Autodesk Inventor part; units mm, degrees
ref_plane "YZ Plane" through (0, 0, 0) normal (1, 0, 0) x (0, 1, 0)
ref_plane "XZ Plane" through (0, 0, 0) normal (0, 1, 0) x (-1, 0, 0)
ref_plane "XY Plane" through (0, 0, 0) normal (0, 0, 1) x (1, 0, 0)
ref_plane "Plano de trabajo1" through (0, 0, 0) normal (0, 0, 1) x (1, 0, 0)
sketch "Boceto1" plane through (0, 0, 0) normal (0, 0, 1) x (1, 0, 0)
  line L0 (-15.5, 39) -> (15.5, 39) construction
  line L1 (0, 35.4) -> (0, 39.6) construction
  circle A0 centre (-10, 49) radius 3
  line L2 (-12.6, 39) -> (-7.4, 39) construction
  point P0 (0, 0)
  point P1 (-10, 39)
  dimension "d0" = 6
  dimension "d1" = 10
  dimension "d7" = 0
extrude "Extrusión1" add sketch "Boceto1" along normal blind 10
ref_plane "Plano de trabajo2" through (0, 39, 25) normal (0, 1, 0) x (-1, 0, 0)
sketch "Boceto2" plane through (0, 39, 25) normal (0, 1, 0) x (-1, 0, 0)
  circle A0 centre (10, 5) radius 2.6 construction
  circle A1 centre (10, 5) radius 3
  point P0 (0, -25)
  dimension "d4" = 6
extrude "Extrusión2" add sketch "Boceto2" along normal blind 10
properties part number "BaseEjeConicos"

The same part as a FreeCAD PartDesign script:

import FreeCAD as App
import Part
import Sketcher

V = App.Vector
Q = App.Units.Quantity

doc = App.newDocument("Part")
body = doc.addObject("PartDesign::Body", "Body")
body.AllowCompound = True

sketch1 = body.newObject("Sketcher::SketchObject", "Sketch")
sketch1.AttachmentSupport = (doc.getObject("XY_Plane"), [""])
sketch1.MapMode = "FlatFace"
sketch1.addGeometry(Part.Circle(V(-10, 49, 0), V(0, 0, 1), 3), False)
sketch1.addConstraint([
    Sketcher.Constraint("Diameter", 0, Q("6 mm")),
    Sketcher.Constraint("DistanceX", 0, 3, -1, 1, Q("10 mm")),
    Sketcher.Constraint("DistanceY", -1, 1, 0, 3, Q("49 mm")),
])
pad1 = body.newObject("PartDesign::Pad", "Pad")
pad1.Profile = sketch1
pad1.Length = 10

sketch2 = body.newObject("Sketcher::SketchObject", "Sketch001")
sketch2.AttachmentSupport = (doc.getObject("XZ_Plane"), [""])
sketch2.MapMode = "FlatFace"
sketch2.AttachmentOffset = App.Placement(V(0, 0, -39), App.Rotation())
sketch2.addGeometry(Part.Circle(V(-10, 30, 0), V(0, 0, 1), 3), False)
sketch2.addConstraint([
    Sketcher.Constraint("Diameter", 0, Q("6 mm")),
    Sketcher.Constraint("DistanceX", 0, 3, -1, 1, Q("10 mm")),
    Sketcher.Constraint("DistanceY", -1, 1, 0, 3, Q("30 mm")),
])
pad2 = body.newObject("PartDesign::Pad", "Pad001")
pad2.Profile = sketch2
pad2.Length = 10
pad2.Reversed = True

doc.recompute()
